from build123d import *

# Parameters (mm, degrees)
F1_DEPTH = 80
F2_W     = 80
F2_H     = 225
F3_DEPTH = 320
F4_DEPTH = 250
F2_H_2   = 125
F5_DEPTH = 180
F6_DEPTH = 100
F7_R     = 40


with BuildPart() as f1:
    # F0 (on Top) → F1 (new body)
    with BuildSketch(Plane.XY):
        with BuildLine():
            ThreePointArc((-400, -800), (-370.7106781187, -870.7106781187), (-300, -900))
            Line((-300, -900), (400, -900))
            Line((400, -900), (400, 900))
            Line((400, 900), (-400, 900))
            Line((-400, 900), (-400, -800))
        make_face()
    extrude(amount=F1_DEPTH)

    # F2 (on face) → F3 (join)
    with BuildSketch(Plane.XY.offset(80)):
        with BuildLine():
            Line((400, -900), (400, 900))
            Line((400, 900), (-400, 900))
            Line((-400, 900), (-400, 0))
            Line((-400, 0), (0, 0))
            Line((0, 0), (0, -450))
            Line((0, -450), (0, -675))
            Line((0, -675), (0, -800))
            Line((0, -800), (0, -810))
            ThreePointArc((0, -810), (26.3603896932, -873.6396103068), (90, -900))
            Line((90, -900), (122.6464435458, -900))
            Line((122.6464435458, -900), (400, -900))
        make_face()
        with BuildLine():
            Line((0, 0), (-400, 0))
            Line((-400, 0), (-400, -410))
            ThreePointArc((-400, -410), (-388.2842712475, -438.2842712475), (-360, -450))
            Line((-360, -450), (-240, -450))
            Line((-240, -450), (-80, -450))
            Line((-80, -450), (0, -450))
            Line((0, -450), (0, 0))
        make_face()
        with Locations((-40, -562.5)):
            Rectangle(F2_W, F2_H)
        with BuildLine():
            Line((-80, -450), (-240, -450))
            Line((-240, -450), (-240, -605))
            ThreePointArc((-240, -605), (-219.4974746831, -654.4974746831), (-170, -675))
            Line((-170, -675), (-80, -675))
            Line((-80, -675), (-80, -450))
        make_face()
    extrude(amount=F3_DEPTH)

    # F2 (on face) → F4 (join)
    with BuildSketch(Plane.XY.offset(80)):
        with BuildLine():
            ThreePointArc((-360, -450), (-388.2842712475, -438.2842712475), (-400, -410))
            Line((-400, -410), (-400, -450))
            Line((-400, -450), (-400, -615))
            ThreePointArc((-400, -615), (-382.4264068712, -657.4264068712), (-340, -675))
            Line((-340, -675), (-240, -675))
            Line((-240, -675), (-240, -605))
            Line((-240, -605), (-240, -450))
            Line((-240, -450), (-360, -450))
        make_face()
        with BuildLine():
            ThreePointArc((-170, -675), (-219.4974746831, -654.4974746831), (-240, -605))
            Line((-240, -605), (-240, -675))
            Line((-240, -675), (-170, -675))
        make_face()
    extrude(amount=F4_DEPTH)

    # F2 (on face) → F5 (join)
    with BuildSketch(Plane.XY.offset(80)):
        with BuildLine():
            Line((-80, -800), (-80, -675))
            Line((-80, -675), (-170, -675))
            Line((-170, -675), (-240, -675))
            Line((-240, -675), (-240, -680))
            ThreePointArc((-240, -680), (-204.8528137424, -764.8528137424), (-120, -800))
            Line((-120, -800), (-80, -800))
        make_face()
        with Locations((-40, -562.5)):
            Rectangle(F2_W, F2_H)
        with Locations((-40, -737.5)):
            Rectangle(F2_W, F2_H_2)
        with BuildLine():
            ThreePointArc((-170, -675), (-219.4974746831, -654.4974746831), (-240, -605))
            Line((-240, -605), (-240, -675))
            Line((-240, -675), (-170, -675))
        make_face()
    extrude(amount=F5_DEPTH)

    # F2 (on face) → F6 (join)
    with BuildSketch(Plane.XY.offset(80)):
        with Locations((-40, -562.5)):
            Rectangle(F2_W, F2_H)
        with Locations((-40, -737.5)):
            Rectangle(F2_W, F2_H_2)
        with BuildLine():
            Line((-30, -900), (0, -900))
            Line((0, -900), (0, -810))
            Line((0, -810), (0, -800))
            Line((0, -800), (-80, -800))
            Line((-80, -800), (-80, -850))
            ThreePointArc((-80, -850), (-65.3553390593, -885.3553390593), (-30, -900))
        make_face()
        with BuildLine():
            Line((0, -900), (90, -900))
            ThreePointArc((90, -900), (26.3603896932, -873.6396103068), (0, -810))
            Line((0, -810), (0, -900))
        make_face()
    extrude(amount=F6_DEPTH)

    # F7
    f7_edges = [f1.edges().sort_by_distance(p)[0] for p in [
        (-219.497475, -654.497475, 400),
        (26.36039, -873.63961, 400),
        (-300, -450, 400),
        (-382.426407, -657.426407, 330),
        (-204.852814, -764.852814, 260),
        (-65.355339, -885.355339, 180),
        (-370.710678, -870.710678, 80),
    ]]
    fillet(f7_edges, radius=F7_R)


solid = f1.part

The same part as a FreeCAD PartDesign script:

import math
import FreeCAD as App
import Part
import Sketcher

V = App.Vector


def edges_at(feature, points):
    """Names of the edges that pass closest to the given points."""
    edges = feature.Shape.Edges
    near = lambda p: min(range(len(edges)), key=lambda i: edges[i].distToShape(Part.Vertex(*p))[0])
    return sorted({f"Edge{near(p) + 1}" for p in points})

doc = App.newDocument("Part")
params = doc.addObject("Spreadsheet::Sheet", "Params")
for row, (alias, value) in enumerate([
    ("sketch1_radius", "100 mm"),
    ("sketch1_width", "700 mm"),
    ("sketch1_height", "1800 mm"),
    ("pad1_length", "80 mm"),
    ("sketch2_radius", "40 mm"),
    ("sketch2_radius2", "70 mm"),
    ("sketch2_radius3", "90 mm"),
    ("sketch2_width", "800 mm"),
    ("sketch2_width2", "120 mm"),
    ("pad2_length", "320 mm"),
    ("sketch3_radius", "40 mm"),
    ("sketch3_radius2", "60 mm"),
    ("sketch3_radius3", "70 mm"),
    ("sketch3_width", "170 mm"),
    ("sketch3_height", "205 mm"),
    ("pad3_length", "250 mm"),
    ("sketch4_radius", "70 mm"),
    ("sketch4_radius2", "120 mm"),
    ("sketch4_width", "90 mm"),
    ("sketch4_width2", "120 mm"),
    ("sketch4_height", "75 mm"),
    ("pad4_length", "180 mm"),
    ("sketch5_radius", "50 mm"),
    ("sketch5_radius2", "90 mm"),
    ("sketch5_width", "120 mm"),
    ("sketch5_height", "400 mm"),
    ("pad5_length", "100 mm"),
    ("fillet_radius", "40 mm"),
], start=1):
    params.set(f"A{row}", alias)
    params.set(f"B{row}", "=" + value)
    params.setAlias(f"B{row}", alias)

body = doc.addObject("PartDesign::Body", "Body")

sketch1 = body.newObject("Sketcher::SketchObject", "Sketch")
sketch1.AttachmentSupport = (doc.getObject("XY_Plane"), [""])
sketch1.MapMode = "FlatFace"
sketch1.addGeometry(Part.ArcOfCircle(Part.Circle(V(-300, -800, 0), V(0, 0, 1), 100), math.radians(180), math.radians(270)), False)
sketch1.addGeometry(Part.LineSegment(V(-300, -900, 0), V(400, -900, 0)), False)
sketch1.addGeometry(Part.LineSegment(V(400, -900, 0), V(400, 900, 0)), False)
sketch1.addGeometry(Part.LineSegment(V(400, 900, 0), V(-400, 900, 0)), False)
sketch1.addGeometry(Part.LineSegment(V(-400, 900, 0), V(-400, -800, 0)), False)
sketch1.addConstraint(Sketcher.Constraint("Tangent", 0, 2, 1, 1))
sketch1.addConstraint(Sketcher.Constraint("Coincident", 1, 2, 2, 1))
sketch1.addConstraint(Sketcher.Constraint("Coincident", 2, 2, 3, 1))
sketch1.addConstraint(Sketcher.Constraint("Coincident", 3, 2, 4, 1))
sketch1.addConstraint(Sketcher.Constraint("Tangent", 4, 2, 0, 1))
sketch1.addConstraint(Sketcher.Constraint("Horizontal", 1))
sketch1.addConstraint(Sketcher.Constraint("Vertical", 2))
sketch1.addConstraint(Sketcher.Constraint("Horizontal", 3))
sketch1.addConstraint(Sketcher.Constraint("Vertical", 4))
sketch1.addConstraint(Sketcher.Constraint("Symmetric", 1, 2, 3, 2, -1, 1))
sketch1.addConstraint(Sketcher.Constraint("Radius", 0, 100.0))
sketch1.addConstraint(Sketcher.Constraint("DistanceX", 1, 1, 1, 2, 700.0))
sketch1.addConstraint(Sketcher.Constraint("DistanceY", 2, 1, 2, 2, 1800.0))
sketch1.setExpression("Constraints[10]", "Params.sketch1_radius")
sketch1.setExpression("Constraints[11]", "Params.sketch1_width")
sketch1.setExpression("Constraints[12]", "Params.sketch1_height")
pad1 = body.newObject("PartDesign::Pad", "Pad")
pad1.Profile = sketch1
pad1.setExpression("Length", "Params.pad1_length")

sketch2 = body.newObject("Sketcher::SketchObject", "Sketch001")
sketch2.AttachmentSupport = (doc.getObject("XY_Plane"), [""])
sketch2.MapMode = "FlatFace"
sketch2.AttachmentOffset = App.Placement(V(0, 0, 80), App.Rotation())
sketch2.addGeometry(Part.LineSegment(V(400, -900, 0), V(400, 900, 0)), False)
sketch2.addGeometry(Part.LineSegment(V(400, 900, 0), V(-400, 900, 0)), False)
sketch2.addGeometry(Part.LineSegment(V(-400, 900, 0), V(-400, -410, 0)), False)
sketch2.addGeometry(Part.ArcOfCircle(Part.Circle(V(-360, -410, 0), V(0, 0, 1), 40), math.radians(180), math.radians(270)), False)
sketch2.addGeometry(Part.LineSegment(V(-360, -450, 0), V(-240, -450, 0)), False)
sketch2.addGeometry(Part.LineSegment(V(-240, -450, 0), V(-240, -605, 0)), False)
sketch2.addGeometry(Part.ArcOfCircle(Part.Circle(V(-170, -605, 0), V(0, 0, 1), 70), math.radians(180), math.radians(270)), False)
sketch2.addGeometry(Part.LineSegment(V(-170, -675, 0), V(0, -675, 0)), False)
sketch2.addGeometry(Part.LineSegment(V(0, -675, 0), V(0, -810, 0)), False)
sketch2.addGeometry(Part.ArcOfCircle(Part.Circle(V(90, -810, 0), V(0, 0, 1), 90), math.radians(180), math.radians(270)), False)
sketch2.addGeometry(Part.LineSegment(V(90, -900, 0), V(400, -900, 0)), False)
sketch2.addConstraint(Sketcher.Constraint("Coincident", 0, 2, 1, 1))
sketch2.addConstraint(Sketcher.Constraint("Coincident", 1, 2, 2, 1))
sketch2.addConstraint(Sketcher.Constraint("Tangent", 2, 2, 3, 1))
sketch2.addConstraint(Sketcher.Constraint("Tangent", 3, 2, 4, 1))
sketch2.addConstraint(Sketcher.Constraint("Coincident", 4, 2, 5, 1))
sketch2.addConstraint(Sketcher.Constraint("Tangent", 5, 2, 6, 1))
sketch2.addConstraint(Sketcher.Constraint("Tangent", 6, 2, 7, 1))
sketch2.addConstraint(Sketcher.Constraint("Coincident", 7, 2, 8, 1))
sketch2.addConstraint(Sketcher.Constraint("Tangent", 8, 2, 9, 1))
sketch2.addConstraint(Sketcher.Constraint("Tangent", 9, 2, 10, 1))
sketch2.addConstraint(Sketcher.Constraint("Coincident", 10, 2, 0, 1))
sketch2.addConstraint(Sketcher.Constraint("Vertical", 0))
sketch2.addConstraint(Sketcher.Constraint("Horizontal", 1))
sketch2.addConstraint(Sketcher.Constraint("Vertical", 2))
sketch2.addConstraint(Sketcher.Constraint("Horizontal", 4))
sketch2.addConstraint(Sketcher.Constraint("Vertical", 5))
sketch2.addConstraint(Sketcher.Constraint("Horizontal", 7))
sketch2.addConstraint(Sketcher.Constraint("Vertical", 8))
sketch2.addConstraint(Sketcher.Constraint("Horizontal", 10))
sketch2.addConstraint(Sketcher.Constraint("Symmetric", 1, 2, 10, 2, -1, 1))
sketch2.addConstraint(Sketcher.Constraint("PointOnObject", 7, 2, -2))
sketch2.addConstraint(Sketcher.Constraint("Radius", 3, 40.0))
sketch2.addConstraint(Sketcher.Constraint("Radius", 6, 70.0))
sketch2.addConstraint(Sketcher.Constraint("Radius", 9, 90.0))
sketch2.addConstraint(Sketcher.Constraint("DistanceX", 1, 2, 1, 1, 800.0))
sketch2.addConstraint(Sketcher.Constraint("DistanceX", 4, 1, 4, 2, 120.0))
sketch2.addConstraint(Sketcher.Constraint("DistanceY", 0, 1, 0, 2, 1800.0))
sketch2.addConstraint(Sketcher.Constraint("DistanceY", 2, 2, 2, 1, 1310.0))
sketch2.addConstraint(Sketcher.Constraint("DistanceY", 5, 2, 5, 1, 155.0))
sketch2.setExpression("Constraints[21]", "Params.sketch2_radius")
sketch2.setExpression("Constraints[22]", "Params.sketch2_radius2")
sketch2.setExpression("Constraints[23]", "Params.sketch2_radius3")
sketch2.setExpression("Constraints[24]", "Params.sketch2_width")
sketch2.setExpression("Constraints[25]", "Params.sketch2_width2")
pad2 = body.newObject("PartDesign::Pad", "Pad001")
pad2.Profile = sketch2
pad2.setExpression("Length", "Params.pad2_length")

sketch3 = body.newObject("Sketcher::SketchObject", "Sketch002")
sketch3.AttachmentSupport = (doc.getObject("XY_Plane"), [""])
sketch3.MapMode = "FlatFace"
sketch3.AttachmentOffset = App.Placement(V(0, 0, 80), App.Rotation())
sketch3.addGeometry(Part.ArcOfCircle(Part.Circle(V(-360, -410, 0), V(0, 0, 1), 40), math.radians(180), math.radians(270)), False)
sketch3.addGeometry(Part.LineSegment(V(-400, -410, 0), V(-400, -615, 0)), False)
sketch3.addGeometry(Part.ArcOfCircle(Part.Circle(V(-340, -615, 0), V(0, 0, 1), 60), math.radians(180), math.radians(270)), False)
sketch3.addGeometry(Part.LineSegment(V(-340, -675, 0), V(-170, -675, 0)), False)
sketch3.addGeometry(Part.ArcOfCircle(Part.Circle(V(-170, -605, 0), V(0, 0, 1), 70), math.radians(180), math.radians(270)), False)
sketch3.addGeometry(Part.LineSegment(V(-240, -605, 0), V(-240, -450, 0)), False)
sketch3.addGeometry(Part.LineSegment(V(-240, -450, 0), V(-360, -450, 0)), False)
sketch3.addConstraint(Sketcher.Constraint("Tangent", 0, 1, 1, 1))
sketch3.addConstraint(Sketcher.Constraint("Tangent", 1, 2, 2, 1))
sketch3.addConstraint(Sketcher.Constraint("Tangent", 2, 2, 3, 1))
sketch3.addConstraint(Sketcher.Constraint("Tangent", 3, 2, 4, 2))
sketch3.addConstraint(Sketcher.Constraint("Tangent", 4, 1, 5, 1))
sketch3.addConstraint(Sketcher.Constraint("Coincident", 5, 2, 6, 1))
sketch3.addConstraint(Sketcher.Constraint("Tangent", 6, 2, 0, 2))
sketch3.addConstraint(Sketcher.Constraint("Vertical", 1))
sketch3.addConstraint(Sketcher.Constraint("Horizontal", 3))
sketch3.addConstraint(Sketcher.Constraint("Vertical", 5))
sketch3.addConstraint(Sketcher.Constraint("Horizontal", 6))
sketch3.addConstraint(Sketcher.Constraint("Radius", 0, 40.0))
sketch3.addConstraint(Sketcher.Constraint("Radius", 2, 60.0))
sketch3.addConstraint(Sketcher.Constraint("Radius", 4, 70.0))
sketch3.addConstraint(Sketcher.Constraint("DistanceX", 3, 1, 3, 2, 170.0))
sketch3.addConstraint(Sketcher.Constraint("DistanceY", 1, 2, 1, 1, 205.0))
sketch3.addConstraint(Sketcher.Constraint("DistanceX", 0, 3, -1, 1, 360.0))
sketch3.addConstraint(Sketcher.Constraint("DistanceY", 0, 3, -1, 1, 410.0))
sketch3.setExpression("Constraints[11]", "Params.sketch3_radius")
sketch3.setExpression("Constraints[12]", "Params.sketch3_radius2")
sketch3.setExpression("Constraints[13]", "Params.sketch3_radius3")
sketch3.setExpression("Constraints[14]", "Params.sketch3_width")
sketch3.setExpression("Constraints[15]", "Params.sketch3_height")
pad3 = body.newObject("PartDesign::Pad", "Pad002")
pad3.Profile = sketch3
pad3.setExpression("Length", "Params.pad3_length")

sketch4 = body.newObject("Sketcher::SketchObject", "Sketch003")
sketch4.AttachmentSupport = (doc.getObject("XY_Plane"), [""])
sketch4.MapMode = "FlatFace"
sketch4.AttachmentOffset = App.Placement(V(0, 0, 80), App.Rotation())
sketch4.addGeometry(Part.LineSegment(V(-80, -675, 0), V(-170, -675, 0)), False)
sketch4.addGeometry(Part.ArcOfCircle(Part.Circle(V(-170, -605, 0), V(0, 0, 1), 70), math.radians(180), math.radians(270)), False)
sketch4.addGeometry(Part.LineSegment(V(-240, -605, 0), V(-240, -680, 0)), False)
sketch4.addGeometry(Part.ArcOfCircle(Part.Circle(V(-120, -680, 0), V(0, 0, 1), 120), math.radians(180), math.radians(270)), False)
sketch4.addGeometry(Part.LineSegment(V(-120, -800, 0), V(0, -800, 0)), False)
sketch4.addGeometry(Part.LineSegment(V(0, -800, 0), V(0, -450, 0)), False)
sketch4.addGeometry(Part.LineSegment(V(0, -450, 0), V(-80, -450, 0)), False)
sketch4.addGeometry(Part.LineSegment(V(-80, -450, 0), V(-80, -675, 0)), False)
sketch4.addConstraint(Sketcher.Constraint("Tangent", 0, 2, 1, 2))
sketch4.addConstraint(Sketcher.Constraint("Tangent", 1, 1, 2, 1))
sketch4.addConstraint(Sketcher.Constraint("Tangent", 2, 2, 3, 1))
sketch4.addConstraint(Sketcher.Constraint("Tangent", 3, 2, 4, 1))
sketch4.addConstraint(Sketcher.Constraint("Coincident", 4, 2, 5, 1))
sketch4.addConstraint(Sketcher.Constraint("Coincident", 5, 2, 6, 1))
sketch4.addConstraint(Sketcher.Constraint("Coincident", 6, 2, 7, 1))
sketch4.addConstraint(Sketcher.Constraint("Coincident", 7, 2, 0, 1))
sketch4.addConstraint(Sketcher.Constraint("Horizontal", 0))
sketch4.addConstraint(Sketcher.Constraint("Vertical", 2))
sketch4.addConstraint(Sketcher.Constraint("Horizontal", 4))
sketch4.addConstraint(Sketcher.Constraint("Vertical", 5))
sketch4.addConstraint(Sketcher.Constraint("Horizontal", 6))
sketch4.addConstraint(Sketcher.Constraint("Vertical", 7))
sketch4.addConstraint(Sketcher.Constraint("PointOnObject", 4, 2, -2))
sketch4.addConstraint(Sketcher.Constraint("Radius", 1, 70.0))
sketch4.addConstraint(Sketcher.Constraint("Radius", 3, 120.0))
sketch4.addConstraint(Sketcher.Constraint("DistanceX", 0, 2, 0, 1, 90.0))
sketch4.addConstraint(Sketcher.Constraint("DistanceX", 4, 1, 4, 2, 120.0))
sketch4.addConstraint(Sketcher.Constraint("DistanceY", 2, 2, 2, 1, 75.0))
sketch4.addConstraint(Sketcher.Constraint("DistanceY", 5, 1, 5, 2, 350.0))
sketch4.addConstraint(Sketcher.Constraint("DistanceY", 1, 3, -1, 1, 605.0))
sketch4.setExpression("Constraints[15]", "Params.sketch4_radius")
sketch4.setExpression("Constraints[16]", "Params.sketch4_radius2")
sketch4.setExpression("Constraints[17]", "Params.sketch4_width")
sketch4.setExpression("Constraints[18]", "Params.sketch4_width2")
sketch4.setExpression("Constraints[19]", "Params.sketch4_height")
pad4 = body.newObject("PartDesign::Pad", "Pad003")
pad4.Profile = sketch4
pad4.setExpression("Length", "Params.pad4_length")

sketch5 = body.newObject("Sketcher::SketchObject", "Sketch004")
sketch5.AttachmentSupport = (doc.getObject("XY_Plane"), [""])
sketch5.MapMode = "FlatFace"
sketch5.AttachmentOffset = App.Placement(V(0, 0, 80), App.Rotation())
sketch5.addGeometry(Part.LineSegment(V(-80, -450, 0), V(-80, -850, 0)), False)
sketch5.addGeometry(Part.ArcOfCircle(Part.Circle(V(-30, -850, 0), V(0, 0, 1), 50), math.radians(180), math.radians(270)), False)
sketch5.addGeometry(Part.LineSegment(V(-30, -900, 0), V(90, -900, 0)), False)
sketch5.addGeometry(Part.ArcOfCircle(Part.Circle(V(90, -810, 0), V(0, 0, 1), 90), math.radians(180), math.radians(270)), False)
sketch5.addGeometry(Part.LineSegment(V(0, -810, 0), V(0, -450, 0)), False)
sketch5.addGeometry(Part.LineSegment(V(0, -450, 0), V(-80, -450, 0)), False)
sketch5.addConstraint(Sketcher.Constraint("Tangent", 0, 2, 1, 1))
sketch5.addConstraint(Sketcher.Constraint("Tangent", 1, 2, 2, 1))
sketch5.addConstraint(Sketcher.Constraint("Tangent", 2, 2, 3, 2))
sketch5.addConstraint(Sketcher.Constraint("Tangent", 3, 1, 4, 1))
sketch5.addConstraint(Sketcher.Constraint("Coincident", 4, 2, 5, 1))
sketch5.addConstraint(Sketcher.Constraint("Coincident", 5, 2, 0, 1))
sketch5.addConstraint(Sketcher.Constraint("Vertical", 0))
sketch5.addConstraint(Sketcher.Constraint("Horizontal", 2))
sketch5.addConstraint(Sketcher.Constraint("Vertical", 4))
sketch5.addConstraint(Sketcher.Constraint("Horizontal", 5))
sketch5.addConstraint(Sketcher.Constraint("PointOnObject", 3, 1, -2))
sketch5.addConstraint(Sketcher.Constraint("Radius", 1, 50.0))
sketch5.addConstraint(Sketcher.Constraint("Radius", 3, 90.0))
sketch5.addConstraint(Sketcher.Constraint("DistanceX", 2, 1, 2, 2, 120.0))
sketch5.addConstraint(Sketcher.Constraint("DistanceY", 0, 2, 0, 1, 400.0))
sketch5.addConstraint(Sketcher.Constraint("DistanceY", 1, 3, -1, 1, 850.0))
sketch5.setExpression("Constraints[11]", "Params.sketch5_radius")
sketch5.setExpression("Constraints[12]", "Params.sketch5_radius2")
sketch5.setExpression("Constraints[13]", "Params.sketch5_width")
sketch5.setExpression("Constraints[14]", "Params.sketch5_height")
pad5 = body.newObject("PartDesign::Pad", "Pad004")
pad5.Profile = sketch5
pad5.setExpression("Length", "Params.pad5_length")
doc.recompute()

fillet = body.newObject("PartDesign::Fillet", "Fillet")
fillet.Base = (pad5, edges_at(pad5, [
    (-219.497, -654.497, 400),
    (26.36, -873.64, 400),
    (-300, -450, 400),
    (-382.426, -657.426, 330),
    (-204.853, -764.853, 260),
    (-65.355, -885.355, 180),
    (-370.711, -870.711, 80),
]))
fillet.setExpression("Radius", "Params.fillet_radius")

doc.recompute()
